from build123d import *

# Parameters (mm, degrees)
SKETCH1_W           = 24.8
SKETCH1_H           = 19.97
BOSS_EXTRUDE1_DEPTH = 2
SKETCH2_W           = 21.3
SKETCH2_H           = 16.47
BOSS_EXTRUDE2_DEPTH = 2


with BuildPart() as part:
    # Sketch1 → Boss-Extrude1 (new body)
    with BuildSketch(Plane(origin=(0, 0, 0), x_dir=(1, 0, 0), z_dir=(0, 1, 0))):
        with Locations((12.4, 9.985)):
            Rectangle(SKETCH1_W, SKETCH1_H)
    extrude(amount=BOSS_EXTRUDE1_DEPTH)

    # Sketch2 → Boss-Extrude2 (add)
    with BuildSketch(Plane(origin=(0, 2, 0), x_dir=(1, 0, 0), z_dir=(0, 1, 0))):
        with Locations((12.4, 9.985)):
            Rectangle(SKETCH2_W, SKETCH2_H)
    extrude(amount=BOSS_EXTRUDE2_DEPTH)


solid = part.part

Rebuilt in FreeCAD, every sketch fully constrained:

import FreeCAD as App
import Part
import Sketcher
from FreeCAD import Vector

doc = App.newDocument("Part")
body = doc.addObject("PartDesign::Body", "Body")

sketch1 = doc.addObject("Sketcher::SketchObject", "Sketch")
body.addObject(sketch1)
sketch1.AttachmentSupport = (doc.XZ_Plane, [""])
sketch1.MapMode = "FlatFace"
sketch1.addGeometry([
    Part.LineSegment(Vector(0, -20, 0), Vector(0, 0, 0)),
    Part.LineSegment(Vector(0, 0, 0), Vector(25, 0, 0)),
    Part.LineSegment(Vector(25, 0, 0), Vector(25, -20, 0)),
    Part.LineSegment(Vector(25, -20, 0), Vector(0, -20, 0)),
], False)
sketch1.addConstraint([
    Sketcher.Constraint("Coincident", 0, 2, 1, 1),
    Sketcher.Constraint("Coincident", 1, 2, 2, 1),
    Sketcher.Constraint("Coincident", 2, 2, 3, 1),
    Sketcher.Constraint("Coincident", 3, 2, 0, 1),
    Sketcher.Constraint("Vertical", 0),
    Sketcher.Constraint("Horizontal", 1),
    Sketcher.Constraint("Vertical", 2),
    Sketcher.Constraint("Horizontal", 3),
    Sketcher.Constraint("Coincident", 0, 2, -1, 1),
    Sketcher.Constraint("DistanceX", 1, 1, 1, 2, 24.8),
    Sketcher.Constraint("DistanceY", 0, 1, 0, 2, 19.97),
])
pad1 = doc.addObject("PartDesign::Pad", "Pad")
body.addObject(pad1)
pad1.Profile = sketch1
pad1.Length = 2
pad1.Reversed = True

sketch2 = doc.addObject("Sketcher::SketchObject", "Sketch001")
body.addObject(sketch2)
sketch2.AttachmentSupport = (doc.XZ_Plane, [""])
sketch2.MapMode = "FlatFace"
sketch2.AttachmentOffset = App.Placement(Vector(0, 0, -2), App.Rotation())
sketch2.addGeometry([
    Part.LineSegment(Vector(2, -18, 0), Vector(2, -2, 0)),
    Part.LineSegment(Vector(2, -2, 0), Vector(23, -2, 0)),
    Part.LineSegment(Vector(23, -2, 0), Vector(23, -18, 0)),
    Part.LineSegment(Vector(23, -18, 0), Vector(2, -18, 0)),
], False)
sketch2.addConstraint([
    Sketcher.Constraint("Coincident", 0, 2, 1, 1),
    Sketcher.Constraint("Coincident", 1, 2, 2, 1),
    Sketcher.Constraint("Coincident", 2, 2, 3, 1),
    Sketcher.Constraint("Coincident", 3, 2, 0, 1),
    Sketcher.Constraint("Vertical", 0),
    Sketcher.Constraint("Horizontal", 1),
    Sketcher.Constraint("Vertical", 2),
    Sketcher.Constraint("Horizontal", 3),
    Sketcher.Constraint("DistanceX", 1, 1, 1, 2, 21.3),
    Sketcher.Constraint("DistanceY", 0, 1, 0, 2, 16.47),
    Sketcher.Constraint("DistanceX", -1, 1, 0, 2, 1.75),
    Sketcher.Constraint("DistanceY", 0, 2, -1, 1, 1.75),
])
pad2 = doc.addObject("PartDesign::Pad", "Pad001")
body.addObject(pad2)
pad2.Profile = sketch2
pad2.Length = 2
pad2.Reversed = True

doc.recompute()
